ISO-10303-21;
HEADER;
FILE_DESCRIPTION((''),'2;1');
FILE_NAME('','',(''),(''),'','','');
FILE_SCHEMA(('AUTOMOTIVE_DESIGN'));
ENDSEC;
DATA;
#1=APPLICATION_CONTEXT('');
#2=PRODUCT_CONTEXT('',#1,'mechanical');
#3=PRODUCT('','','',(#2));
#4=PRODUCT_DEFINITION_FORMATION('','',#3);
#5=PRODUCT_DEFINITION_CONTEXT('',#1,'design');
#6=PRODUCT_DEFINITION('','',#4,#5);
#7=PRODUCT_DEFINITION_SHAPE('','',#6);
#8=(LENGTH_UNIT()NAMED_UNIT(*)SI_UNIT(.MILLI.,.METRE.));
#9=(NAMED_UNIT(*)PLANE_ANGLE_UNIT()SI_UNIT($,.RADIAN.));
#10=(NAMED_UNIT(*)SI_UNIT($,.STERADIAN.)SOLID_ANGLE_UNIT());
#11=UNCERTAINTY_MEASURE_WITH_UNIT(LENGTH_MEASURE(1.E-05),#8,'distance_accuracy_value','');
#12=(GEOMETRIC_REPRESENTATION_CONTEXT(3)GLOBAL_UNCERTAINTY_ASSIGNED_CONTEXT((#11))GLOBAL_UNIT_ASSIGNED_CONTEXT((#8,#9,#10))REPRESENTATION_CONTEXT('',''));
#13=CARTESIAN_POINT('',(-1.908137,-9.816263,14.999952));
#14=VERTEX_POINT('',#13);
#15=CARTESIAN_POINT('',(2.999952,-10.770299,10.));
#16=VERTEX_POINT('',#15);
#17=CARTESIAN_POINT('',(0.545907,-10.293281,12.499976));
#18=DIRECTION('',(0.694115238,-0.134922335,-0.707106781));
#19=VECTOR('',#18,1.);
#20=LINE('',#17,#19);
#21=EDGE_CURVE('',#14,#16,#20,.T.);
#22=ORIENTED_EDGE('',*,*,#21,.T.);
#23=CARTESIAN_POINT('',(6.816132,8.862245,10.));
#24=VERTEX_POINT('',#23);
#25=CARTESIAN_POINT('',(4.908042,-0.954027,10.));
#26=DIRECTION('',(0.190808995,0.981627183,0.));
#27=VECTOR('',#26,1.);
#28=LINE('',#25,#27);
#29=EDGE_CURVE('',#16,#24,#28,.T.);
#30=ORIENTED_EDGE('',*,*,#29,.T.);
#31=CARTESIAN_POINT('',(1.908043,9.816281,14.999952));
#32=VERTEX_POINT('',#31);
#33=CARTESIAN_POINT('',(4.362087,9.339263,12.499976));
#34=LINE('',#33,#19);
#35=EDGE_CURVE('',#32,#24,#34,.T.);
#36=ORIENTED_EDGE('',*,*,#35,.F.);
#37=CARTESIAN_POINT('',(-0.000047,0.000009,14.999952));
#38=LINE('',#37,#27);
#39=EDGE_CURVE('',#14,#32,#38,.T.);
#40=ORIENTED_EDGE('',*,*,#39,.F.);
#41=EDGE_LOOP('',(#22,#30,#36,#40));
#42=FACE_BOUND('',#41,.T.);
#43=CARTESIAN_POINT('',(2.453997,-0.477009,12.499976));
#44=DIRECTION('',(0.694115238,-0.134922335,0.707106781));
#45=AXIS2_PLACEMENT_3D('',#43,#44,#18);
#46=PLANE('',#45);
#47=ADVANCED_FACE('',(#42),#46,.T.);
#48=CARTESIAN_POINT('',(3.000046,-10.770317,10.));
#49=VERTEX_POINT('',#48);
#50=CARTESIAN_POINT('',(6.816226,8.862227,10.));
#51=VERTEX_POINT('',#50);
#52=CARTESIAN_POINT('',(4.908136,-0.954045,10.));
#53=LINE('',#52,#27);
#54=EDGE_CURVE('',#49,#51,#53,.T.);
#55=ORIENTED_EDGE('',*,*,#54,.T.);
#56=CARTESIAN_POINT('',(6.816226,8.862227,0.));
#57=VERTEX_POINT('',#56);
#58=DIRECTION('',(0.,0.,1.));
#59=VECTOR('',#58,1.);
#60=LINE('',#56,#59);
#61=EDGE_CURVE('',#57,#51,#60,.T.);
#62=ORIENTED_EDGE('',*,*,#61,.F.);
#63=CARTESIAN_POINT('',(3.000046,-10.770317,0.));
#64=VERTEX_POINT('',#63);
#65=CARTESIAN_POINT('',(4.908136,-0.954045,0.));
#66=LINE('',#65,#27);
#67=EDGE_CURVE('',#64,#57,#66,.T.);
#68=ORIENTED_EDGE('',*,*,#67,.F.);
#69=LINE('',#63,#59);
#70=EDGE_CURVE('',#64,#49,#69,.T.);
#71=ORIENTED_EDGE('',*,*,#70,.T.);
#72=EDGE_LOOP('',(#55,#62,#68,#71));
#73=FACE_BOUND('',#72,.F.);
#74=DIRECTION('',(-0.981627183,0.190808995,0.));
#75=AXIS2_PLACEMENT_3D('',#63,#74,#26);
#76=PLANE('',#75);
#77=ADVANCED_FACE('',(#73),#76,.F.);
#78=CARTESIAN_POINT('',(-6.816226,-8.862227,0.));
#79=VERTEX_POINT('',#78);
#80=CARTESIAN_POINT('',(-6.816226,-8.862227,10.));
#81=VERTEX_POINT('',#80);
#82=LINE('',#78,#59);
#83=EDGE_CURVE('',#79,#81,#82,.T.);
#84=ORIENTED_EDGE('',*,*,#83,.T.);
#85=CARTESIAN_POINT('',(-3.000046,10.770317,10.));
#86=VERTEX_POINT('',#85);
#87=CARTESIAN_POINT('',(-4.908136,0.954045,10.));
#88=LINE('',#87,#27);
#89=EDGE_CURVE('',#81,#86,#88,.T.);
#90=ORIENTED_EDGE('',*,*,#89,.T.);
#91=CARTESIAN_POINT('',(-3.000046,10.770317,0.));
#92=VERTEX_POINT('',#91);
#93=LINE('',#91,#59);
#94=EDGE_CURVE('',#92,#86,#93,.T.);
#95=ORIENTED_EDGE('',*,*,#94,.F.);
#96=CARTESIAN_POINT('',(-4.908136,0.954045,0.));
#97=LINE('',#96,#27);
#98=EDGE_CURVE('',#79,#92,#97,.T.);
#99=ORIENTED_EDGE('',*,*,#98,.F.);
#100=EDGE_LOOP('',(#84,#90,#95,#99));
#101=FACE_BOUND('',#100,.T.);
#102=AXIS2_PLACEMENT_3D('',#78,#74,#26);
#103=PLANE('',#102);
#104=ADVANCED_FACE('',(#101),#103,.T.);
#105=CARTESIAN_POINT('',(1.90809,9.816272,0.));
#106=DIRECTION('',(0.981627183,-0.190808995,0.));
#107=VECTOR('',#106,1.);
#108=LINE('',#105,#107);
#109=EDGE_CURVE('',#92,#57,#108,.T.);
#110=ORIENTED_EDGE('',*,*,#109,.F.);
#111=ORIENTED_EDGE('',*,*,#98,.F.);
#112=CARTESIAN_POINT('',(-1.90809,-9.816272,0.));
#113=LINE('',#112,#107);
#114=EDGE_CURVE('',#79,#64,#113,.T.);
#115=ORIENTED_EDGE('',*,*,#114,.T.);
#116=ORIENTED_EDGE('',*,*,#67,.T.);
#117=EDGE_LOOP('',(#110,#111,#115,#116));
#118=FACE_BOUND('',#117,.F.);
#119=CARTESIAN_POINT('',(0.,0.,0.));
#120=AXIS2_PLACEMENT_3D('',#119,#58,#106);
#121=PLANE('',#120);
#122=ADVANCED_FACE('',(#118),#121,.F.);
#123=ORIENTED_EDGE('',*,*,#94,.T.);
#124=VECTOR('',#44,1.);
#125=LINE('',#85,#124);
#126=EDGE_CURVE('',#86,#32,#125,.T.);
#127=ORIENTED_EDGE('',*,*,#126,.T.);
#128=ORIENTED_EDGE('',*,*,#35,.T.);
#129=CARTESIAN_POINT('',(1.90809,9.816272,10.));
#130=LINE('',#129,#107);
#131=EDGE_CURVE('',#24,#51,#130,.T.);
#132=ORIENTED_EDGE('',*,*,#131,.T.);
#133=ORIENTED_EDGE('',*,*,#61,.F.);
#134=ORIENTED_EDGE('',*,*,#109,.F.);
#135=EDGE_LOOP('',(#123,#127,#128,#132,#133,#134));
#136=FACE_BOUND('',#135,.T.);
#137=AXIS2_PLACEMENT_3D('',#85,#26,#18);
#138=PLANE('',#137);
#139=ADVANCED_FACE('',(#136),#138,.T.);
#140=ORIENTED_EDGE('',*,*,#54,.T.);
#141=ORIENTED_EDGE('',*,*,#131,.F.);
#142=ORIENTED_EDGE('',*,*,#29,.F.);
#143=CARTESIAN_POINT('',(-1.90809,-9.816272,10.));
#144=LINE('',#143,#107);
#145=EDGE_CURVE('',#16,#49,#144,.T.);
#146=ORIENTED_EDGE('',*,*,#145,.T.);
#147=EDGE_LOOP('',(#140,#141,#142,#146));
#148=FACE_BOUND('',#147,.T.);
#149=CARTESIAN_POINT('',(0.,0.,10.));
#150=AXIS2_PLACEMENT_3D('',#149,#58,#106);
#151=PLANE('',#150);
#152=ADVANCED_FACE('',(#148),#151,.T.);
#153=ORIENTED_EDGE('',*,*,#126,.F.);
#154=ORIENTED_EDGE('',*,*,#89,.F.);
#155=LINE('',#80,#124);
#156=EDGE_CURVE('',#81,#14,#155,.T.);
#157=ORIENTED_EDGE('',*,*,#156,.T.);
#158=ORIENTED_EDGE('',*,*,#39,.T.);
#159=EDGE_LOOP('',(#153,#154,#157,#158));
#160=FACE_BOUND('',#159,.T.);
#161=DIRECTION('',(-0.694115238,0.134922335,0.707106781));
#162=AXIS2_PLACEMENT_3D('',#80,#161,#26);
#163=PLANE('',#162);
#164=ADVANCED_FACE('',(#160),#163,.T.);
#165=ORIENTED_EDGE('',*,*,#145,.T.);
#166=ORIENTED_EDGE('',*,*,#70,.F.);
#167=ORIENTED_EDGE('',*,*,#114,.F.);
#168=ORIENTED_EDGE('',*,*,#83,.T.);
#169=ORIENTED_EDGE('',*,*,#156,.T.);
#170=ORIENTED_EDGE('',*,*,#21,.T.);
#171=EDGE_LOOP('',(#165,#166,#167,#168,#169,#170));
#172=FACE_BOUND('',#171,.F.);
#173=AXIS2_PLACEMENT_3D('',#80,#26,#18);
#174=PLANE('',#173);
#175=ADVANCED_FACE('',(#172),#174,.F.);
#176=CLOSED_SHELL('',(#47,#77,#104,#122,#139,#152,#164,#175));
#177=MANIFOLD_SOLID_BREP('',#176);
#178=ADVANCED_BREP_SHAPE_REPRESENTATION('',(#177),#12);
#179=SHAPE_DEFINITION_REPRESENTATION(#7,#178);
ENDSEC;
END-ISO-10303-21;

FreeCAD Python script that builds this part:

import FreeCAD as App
import Part
import Sketcher

doc = App.newDocument("Part")
params = doc.addObject("Spreadsheet::Sheet", "Params")
for row, (alias, value) in enumerate([
    ("sketch1_height", "20 mm"),
    ("pad1_length", "7.071 mm"),
    ("sketch2_width", "10 mm"),
    ("sketch2_height", "20 mm"),
    ("pad2_length", "10 mm"),
], start=1):
    params.set(f"A{row}", alias)
    params.set(f"B{row}", "=" + value)
    params.setAlias(f"B{row}", alias)

body = doc.addObject("PartDesign::Body", "Body")

# Sketch on XY plane
sketch1 = body.newObject("Sketcher::SketchObject", "Sketch")
sketch1.AttachmentSupport = (doc.getObject("XY_Plane"), [""])
sketch1.MapMode = "FlatFace"
sketch1.addGeometry(Part.LineSegment(App.Vector(0, 20, 0), App.Vector(0, 0, 0)), False)
sketch1.addGeometry(Part.LineSegment(App.Vector(0, 0, 0), App.Vector(7, 0, 0)), False)
sketch1.addGeometry(Part.LineSegment(App.Vector(7, 0, 0), App.Vector(7, 20, 0)), False)
sketch1.addGeometry(Part.LineSegment(App.Vector(7, 20, 0), App.Vector(0, 20, 0)), False)
sketch1.addConstraint(Sketcher.Constraint("Coincident", 0, 2, 1, 1))
sketch1.addConstraint(Sketcher.Constraint("Coincident", 1, 2, 2, 1))
sketch1.addConstraint(Sketcher.Constraint("Coincident", 2, 2, 3, 1))
sketch1.addConstraint(Sketcher.Constraint("Coincident", 3, 2, 0, 1))
sketch1.addConstraint(Sketcher.Constraint("Vertical", 0))
sketch1.addConstraint(Sketcher.Constraint("Horizontal", 1))
sketch1.addConstraint(Sketcher.Constraint("Vertical", 2))
sketch1.addConstraint(Sketcher.Constraint("Horizontal", 3))
sketch1.addConstraint(Sketcher.Constraint("Coincident", 0, 2, -1, 1))
sketch1.addConstraint(Sketcher.Constraint("DistanceY", 0, 2, 0, 1, 20.0))
sketch1.addConstraint(Sketcher.Constraint("DistanceX", 1, 1, 1, 2, 7.071))
sketch1.setExpression("Constraints[9]", "Params.sketch1_height")
pad1 = body.newObject("PartDesign::Pad", "Pad")
pad1.Profile = sketch1
pad1.setExpression("Length", "Params.pad1_length")
body2 = doc.addObject("PartDesign::Body", "Body001")
doc.recompute()

body.Placement = App.Placement(App.Vector(0, 0, 0), App.Rotation(App.Vector(0, 1, 0), 45))
boolean = body2.newObject("PartDesign::Boolean", "Boolean")
boolean.Type = "Fuse"
boolean.addObjects([body])
body3 = doc.addObject("PartDesign::Body", "Body002")
doc.recompute()

body2.Placement = App.Placement(App.Vector(-6.816226, -8.862227, 10), App.Rotation(App.Vector(0, 0, 1), 349))
boolean2 = body3.newObject("PartDesign::Boolean", "Boolean001")
boolean2.Type = "Fuse"
boolean2.addObjects([body2])
body4 = doc.addObject("PartDesign::Body", "Body003")

# Sketch on XY plane
sketch2 = body4.newObject("Sketcher::SketchObject", "Sketch001")
sketch2.AttachmentSupport = (doc.getObject("XY_Plane003"), [""])
sketch2.MapMode = "FlatFace"
sketch2.addGeometry(Part.LineSegment(App.Vector(0, 20, 0), App.Vector(0, 0, 0)), False)
sketch2.addGeometry(Part.LineSegment(App.Vector(0, 0, 0), App.Vector(10, 0, 0)), False)
sketch2.addGeometry(Part.LineSegment(App.Vector(10, 0, 0), App.Vector(10, 20, 0)), False)
sketch2.addGeometry(Part.LineSegment(App.Vector(10, 20, 0), App.Vector(0, 20, 0)), False)
sketch2.addConstraint(Sketcher.Constraint("Coincident", 0, 2, 1, 1))
sketch2.addConstraint(Sketcher.Constraint("Coincident", 1, 2, 2, 1))
sketch2.addConstraint(Sketcher.Constraint("Coincident", 2, 2, 3, 1))
sketch2.addConstraint(Sketcher.Constraint("Coincident", 3, 2, 0, 1))
sketch2.addConstraint(Sketcher.Constraint("Vertical", 0))
sketch2.addConstraint(Sketcher.Constraint("Horizontal", 1))
sketch2.addConstraint(Sketcher.Constraint("Vertical", 2))
sketch2.addConstraint(Sketcher.Constraint("Horizontal", 3))
sketch2.addConstraint(Sketcher.Constraint("Coincident", 0, 2, -1, 1))
sketch2.addConstraint(Sketcher.Constraint("DistanceX", 1, 1, 1, 2, 10.0))
sketch2.addConstraint(Sketcher.Constraint("DistanceY", 0, 2, 0, 1, 20.0))
sketch2.setExpression("Constraints[9]", "Params.sketch2_width")
sketch2.setExpression("Constraints[10]", "Params.sketch2_height")
pad2 = body4.newObject("PartDesign::Pad", "Pad001")
pad2.Profile = sketch2
pad2.setExpression("Length", "Params.pad2_length")
body5 = doc.addObject("PartDesign::Body", "Body004")
doc.recompute()

body4.Placement = App.Placement(App.Vector(-6.816226, -8.862227, 0), App.Rotation(App.Vector(0, 0, 1), 349))
boolean3 = body5.newObject("PartDesign::Boolean", "Boolean002")
boolean3.Type = "Fuse"
boolean3.addObjects([body4])
doc.recompute()

boolean4 = body5.newObject("PartDesign::Boolean", "Boolean003")
boolean4.Type = "Fuse"
boolean4.addObjects([body3])

doc.recompute()
